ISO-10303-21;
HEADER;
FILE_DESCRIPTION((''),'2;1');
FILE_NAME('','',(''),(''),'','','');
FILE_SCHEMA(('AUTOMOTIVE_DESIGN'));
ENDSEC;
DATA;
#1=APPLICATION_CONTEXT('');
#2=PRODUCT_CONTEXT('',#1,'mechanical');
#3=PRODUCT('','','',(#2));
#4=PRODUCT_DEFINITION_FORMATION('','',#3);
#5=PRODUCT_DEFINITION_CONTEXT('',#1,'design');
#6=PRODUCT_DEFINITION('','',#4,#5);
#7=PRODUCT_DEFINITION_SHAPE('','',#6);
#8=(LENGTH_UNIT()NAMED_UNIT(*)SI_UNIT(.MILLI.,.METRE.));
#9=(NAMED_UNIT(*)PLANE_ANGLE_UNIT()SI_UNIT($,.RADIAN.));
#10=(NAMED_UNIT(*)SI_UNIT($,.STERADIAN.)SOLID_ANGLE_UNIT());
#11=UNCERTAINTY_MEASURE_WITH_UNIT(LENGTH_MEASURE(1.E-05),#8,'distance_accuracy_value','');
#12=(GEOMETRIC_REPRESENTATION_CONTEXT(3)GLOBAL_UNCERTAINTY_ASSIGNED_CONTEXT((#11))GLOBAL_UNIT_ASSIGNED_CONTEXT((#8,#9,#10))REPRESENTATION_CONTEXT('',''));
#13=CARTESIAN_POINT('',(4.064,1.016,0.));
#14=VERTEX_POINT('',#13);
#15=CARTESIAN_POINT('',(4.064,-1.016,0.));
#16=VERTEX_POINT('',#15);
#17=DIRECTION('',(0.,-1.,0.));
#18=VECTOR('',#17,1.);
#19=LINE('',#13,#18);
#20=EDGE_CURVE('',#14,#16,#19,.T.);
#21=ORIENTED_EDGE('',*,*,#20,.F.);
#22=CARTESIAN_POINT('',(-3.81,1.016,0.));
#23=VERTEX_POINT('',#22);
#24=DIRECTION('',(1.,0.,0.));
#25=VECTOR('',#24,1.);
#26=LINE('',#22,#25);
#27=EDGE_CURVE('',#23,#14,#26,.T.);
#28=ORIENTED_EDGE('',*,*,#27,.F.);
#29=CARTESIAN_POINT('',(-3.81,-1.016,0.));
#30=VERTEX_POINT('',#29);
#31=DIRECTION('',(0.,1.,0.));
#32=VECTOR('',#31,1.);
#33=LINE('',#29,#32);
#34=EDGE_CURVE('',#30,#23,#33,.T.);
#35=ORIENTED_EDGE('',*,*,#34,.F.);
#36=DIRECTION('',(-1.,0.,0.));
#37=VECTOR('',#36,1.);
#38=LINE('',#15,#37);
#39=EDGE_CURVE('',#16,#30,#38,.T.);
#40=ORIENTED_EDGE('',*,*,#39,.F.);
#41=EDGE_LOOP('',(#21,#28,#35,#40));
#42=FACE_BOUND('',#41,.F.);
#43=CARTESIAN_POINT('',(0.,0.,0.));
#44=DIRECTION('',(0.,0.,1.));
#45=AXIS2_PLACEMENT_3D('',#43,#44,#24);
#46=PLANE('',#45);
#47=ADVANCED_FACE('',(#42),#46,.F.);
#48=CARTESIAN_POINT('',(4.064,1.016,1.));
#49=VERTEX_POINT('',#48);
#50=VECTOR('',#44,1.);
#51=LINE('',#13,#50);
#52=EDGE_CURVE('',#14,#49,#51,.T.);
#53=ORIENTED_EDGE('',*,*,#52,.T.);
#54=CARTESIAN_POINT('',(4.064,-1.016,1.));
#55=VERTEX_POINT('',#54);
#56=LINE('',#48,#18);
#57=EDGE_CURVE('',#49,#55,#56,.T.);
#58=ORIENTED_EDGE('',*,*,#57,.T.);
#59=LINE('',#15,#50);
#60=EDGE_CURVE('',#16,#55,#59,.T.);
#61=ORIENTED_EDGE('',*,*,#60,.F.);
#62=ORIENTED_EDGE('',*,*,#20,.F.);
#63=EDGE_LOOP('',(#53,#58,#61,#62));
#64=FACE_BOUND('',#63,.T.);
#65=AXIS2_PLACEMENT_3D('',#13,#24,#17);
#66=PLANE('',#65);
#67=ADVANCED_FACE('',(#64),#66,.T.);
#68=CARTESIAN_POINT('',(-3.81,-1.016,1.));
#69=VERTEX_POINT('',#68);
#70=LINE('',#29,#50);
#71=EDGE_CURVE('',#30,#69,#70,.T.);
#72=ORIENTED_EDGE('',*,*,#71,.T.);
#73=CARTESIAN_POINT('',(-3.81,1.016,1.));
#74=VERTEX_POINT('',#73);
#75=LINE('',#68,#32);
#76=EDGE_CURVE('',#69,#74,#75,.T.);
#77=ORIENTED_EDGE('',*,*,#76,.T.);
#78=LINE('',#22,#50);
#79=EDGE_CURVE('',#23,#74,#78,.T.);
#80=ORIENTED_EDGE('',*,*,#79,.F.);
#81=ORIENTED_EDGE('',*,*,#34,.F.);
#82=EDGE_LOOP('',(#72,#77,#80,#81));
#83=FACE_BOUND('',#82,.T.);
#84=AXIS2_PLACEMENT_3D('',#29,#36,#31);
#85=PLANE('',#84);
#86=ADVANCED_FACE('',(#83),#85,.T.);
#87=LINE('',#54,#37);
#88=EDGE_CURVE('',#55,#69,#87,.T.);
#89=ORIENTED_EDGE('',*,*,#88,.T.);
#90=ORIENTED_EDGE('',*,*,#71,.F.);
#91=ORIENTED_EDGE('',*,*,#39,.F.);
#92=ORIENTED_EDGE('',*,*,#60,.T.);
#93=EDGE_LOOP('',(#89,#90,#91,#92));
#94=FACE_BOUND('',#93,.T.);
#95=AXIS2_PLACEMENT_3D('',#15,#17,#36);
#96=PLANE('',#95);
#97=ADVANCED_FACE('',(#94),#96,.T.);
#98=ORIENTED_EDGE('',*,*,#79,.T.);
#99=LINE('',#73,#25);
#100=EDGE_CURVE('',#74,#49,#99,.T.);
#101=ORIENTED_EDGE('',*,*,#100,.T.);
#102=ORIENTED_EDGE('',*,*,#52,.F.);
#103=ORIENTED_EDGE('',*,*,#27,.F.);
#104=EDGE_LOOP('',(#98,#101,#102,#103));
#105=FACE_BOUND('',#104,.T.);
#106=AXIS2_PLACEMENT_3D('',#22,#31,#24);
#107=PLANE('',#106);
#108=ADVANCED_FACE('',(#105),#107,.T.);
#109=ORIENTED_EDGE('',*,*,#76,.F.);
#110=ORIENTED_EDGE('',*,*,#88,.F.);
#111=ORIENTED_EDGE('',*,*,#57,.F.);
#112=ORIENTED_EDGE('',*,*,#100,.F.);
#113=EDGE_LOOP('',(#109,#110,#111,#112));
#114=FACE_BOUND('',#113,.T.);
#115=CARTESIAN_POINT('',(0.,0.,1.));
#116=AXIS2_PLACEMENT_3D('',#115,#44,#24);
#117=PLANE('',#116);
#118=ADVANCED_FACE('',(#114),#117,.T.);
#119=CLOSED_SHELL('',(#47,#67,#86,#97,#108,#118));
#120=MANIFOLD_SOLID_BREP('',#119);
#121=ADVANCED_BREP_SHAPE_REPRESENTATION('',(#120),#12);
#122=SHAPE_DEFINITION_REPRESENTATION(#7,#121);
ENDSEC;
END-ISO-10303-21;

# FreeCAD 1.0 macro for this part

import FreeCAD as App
import Part
import Sketcher
from FreeCAD import Vector
Q = App.Units.Quantity


def add_polygon(sketch, points):
    """Adds a closed chain of lines whose ends are joined by coincident constraints."""
    first, n = sketch.GeometryCount, len(points)
    for a, b in zip(points, points[1:] + points[:1]):
        sketch.addGeometry(Part.LineSegment(App.Vector(*a, 0), App.Vector(*b, 0)), False)
    for i in range(n):
        sketch.addConstraint(Sketcher.Constraint("Coincident", first + i, 2, first + (i + 1) % n, 1))

doc = App.newDocument("Part")
body = doc.addObject("PartDesign::Body", "Body")

# Sketch on XY plane
sketch1 = body.newObject("Sketcher::SketchObject", "Sketch")
sketch1.AttachmentSupport = (doc.getObject("XY_Plane"), [""])
sketch1.MapMode = "FlatFace"
add_polygon(sketch1, [(4.1, 1), (-3.8, 1), (-3.8, -1), (4.1, -1)])  # lines 0-3
sketch1.addConstraint([
    Sketcher.Constraint("Horizontal", 0),
    Sketcher.Constraint("Vertical", 1),
    Sketcher.Constraint("Horizontal", 2),
    Sketcher.Constraint("Vertical", 3),
    Sketcher.Constraint("DistanceX", 0, 2, 0, 1, Q("0.31 in")),
    Sketcher.Constraint("DistanceY", 1, 2, 1, 1, Q("0.08 in")),
    Sketcher.Constraint("DistanceX", 0, 2, -1, 1, Q("0.15 in")),
    Sketcher.Constraint("DistanceY", -1, 1, 0, 2, Q("0.04 in")),
])
pad1 = body.newObject("PartDesign::Pad", "Pad")
pad1.Profile = sketch1
pad1.Length = 1

doc.recompute()
